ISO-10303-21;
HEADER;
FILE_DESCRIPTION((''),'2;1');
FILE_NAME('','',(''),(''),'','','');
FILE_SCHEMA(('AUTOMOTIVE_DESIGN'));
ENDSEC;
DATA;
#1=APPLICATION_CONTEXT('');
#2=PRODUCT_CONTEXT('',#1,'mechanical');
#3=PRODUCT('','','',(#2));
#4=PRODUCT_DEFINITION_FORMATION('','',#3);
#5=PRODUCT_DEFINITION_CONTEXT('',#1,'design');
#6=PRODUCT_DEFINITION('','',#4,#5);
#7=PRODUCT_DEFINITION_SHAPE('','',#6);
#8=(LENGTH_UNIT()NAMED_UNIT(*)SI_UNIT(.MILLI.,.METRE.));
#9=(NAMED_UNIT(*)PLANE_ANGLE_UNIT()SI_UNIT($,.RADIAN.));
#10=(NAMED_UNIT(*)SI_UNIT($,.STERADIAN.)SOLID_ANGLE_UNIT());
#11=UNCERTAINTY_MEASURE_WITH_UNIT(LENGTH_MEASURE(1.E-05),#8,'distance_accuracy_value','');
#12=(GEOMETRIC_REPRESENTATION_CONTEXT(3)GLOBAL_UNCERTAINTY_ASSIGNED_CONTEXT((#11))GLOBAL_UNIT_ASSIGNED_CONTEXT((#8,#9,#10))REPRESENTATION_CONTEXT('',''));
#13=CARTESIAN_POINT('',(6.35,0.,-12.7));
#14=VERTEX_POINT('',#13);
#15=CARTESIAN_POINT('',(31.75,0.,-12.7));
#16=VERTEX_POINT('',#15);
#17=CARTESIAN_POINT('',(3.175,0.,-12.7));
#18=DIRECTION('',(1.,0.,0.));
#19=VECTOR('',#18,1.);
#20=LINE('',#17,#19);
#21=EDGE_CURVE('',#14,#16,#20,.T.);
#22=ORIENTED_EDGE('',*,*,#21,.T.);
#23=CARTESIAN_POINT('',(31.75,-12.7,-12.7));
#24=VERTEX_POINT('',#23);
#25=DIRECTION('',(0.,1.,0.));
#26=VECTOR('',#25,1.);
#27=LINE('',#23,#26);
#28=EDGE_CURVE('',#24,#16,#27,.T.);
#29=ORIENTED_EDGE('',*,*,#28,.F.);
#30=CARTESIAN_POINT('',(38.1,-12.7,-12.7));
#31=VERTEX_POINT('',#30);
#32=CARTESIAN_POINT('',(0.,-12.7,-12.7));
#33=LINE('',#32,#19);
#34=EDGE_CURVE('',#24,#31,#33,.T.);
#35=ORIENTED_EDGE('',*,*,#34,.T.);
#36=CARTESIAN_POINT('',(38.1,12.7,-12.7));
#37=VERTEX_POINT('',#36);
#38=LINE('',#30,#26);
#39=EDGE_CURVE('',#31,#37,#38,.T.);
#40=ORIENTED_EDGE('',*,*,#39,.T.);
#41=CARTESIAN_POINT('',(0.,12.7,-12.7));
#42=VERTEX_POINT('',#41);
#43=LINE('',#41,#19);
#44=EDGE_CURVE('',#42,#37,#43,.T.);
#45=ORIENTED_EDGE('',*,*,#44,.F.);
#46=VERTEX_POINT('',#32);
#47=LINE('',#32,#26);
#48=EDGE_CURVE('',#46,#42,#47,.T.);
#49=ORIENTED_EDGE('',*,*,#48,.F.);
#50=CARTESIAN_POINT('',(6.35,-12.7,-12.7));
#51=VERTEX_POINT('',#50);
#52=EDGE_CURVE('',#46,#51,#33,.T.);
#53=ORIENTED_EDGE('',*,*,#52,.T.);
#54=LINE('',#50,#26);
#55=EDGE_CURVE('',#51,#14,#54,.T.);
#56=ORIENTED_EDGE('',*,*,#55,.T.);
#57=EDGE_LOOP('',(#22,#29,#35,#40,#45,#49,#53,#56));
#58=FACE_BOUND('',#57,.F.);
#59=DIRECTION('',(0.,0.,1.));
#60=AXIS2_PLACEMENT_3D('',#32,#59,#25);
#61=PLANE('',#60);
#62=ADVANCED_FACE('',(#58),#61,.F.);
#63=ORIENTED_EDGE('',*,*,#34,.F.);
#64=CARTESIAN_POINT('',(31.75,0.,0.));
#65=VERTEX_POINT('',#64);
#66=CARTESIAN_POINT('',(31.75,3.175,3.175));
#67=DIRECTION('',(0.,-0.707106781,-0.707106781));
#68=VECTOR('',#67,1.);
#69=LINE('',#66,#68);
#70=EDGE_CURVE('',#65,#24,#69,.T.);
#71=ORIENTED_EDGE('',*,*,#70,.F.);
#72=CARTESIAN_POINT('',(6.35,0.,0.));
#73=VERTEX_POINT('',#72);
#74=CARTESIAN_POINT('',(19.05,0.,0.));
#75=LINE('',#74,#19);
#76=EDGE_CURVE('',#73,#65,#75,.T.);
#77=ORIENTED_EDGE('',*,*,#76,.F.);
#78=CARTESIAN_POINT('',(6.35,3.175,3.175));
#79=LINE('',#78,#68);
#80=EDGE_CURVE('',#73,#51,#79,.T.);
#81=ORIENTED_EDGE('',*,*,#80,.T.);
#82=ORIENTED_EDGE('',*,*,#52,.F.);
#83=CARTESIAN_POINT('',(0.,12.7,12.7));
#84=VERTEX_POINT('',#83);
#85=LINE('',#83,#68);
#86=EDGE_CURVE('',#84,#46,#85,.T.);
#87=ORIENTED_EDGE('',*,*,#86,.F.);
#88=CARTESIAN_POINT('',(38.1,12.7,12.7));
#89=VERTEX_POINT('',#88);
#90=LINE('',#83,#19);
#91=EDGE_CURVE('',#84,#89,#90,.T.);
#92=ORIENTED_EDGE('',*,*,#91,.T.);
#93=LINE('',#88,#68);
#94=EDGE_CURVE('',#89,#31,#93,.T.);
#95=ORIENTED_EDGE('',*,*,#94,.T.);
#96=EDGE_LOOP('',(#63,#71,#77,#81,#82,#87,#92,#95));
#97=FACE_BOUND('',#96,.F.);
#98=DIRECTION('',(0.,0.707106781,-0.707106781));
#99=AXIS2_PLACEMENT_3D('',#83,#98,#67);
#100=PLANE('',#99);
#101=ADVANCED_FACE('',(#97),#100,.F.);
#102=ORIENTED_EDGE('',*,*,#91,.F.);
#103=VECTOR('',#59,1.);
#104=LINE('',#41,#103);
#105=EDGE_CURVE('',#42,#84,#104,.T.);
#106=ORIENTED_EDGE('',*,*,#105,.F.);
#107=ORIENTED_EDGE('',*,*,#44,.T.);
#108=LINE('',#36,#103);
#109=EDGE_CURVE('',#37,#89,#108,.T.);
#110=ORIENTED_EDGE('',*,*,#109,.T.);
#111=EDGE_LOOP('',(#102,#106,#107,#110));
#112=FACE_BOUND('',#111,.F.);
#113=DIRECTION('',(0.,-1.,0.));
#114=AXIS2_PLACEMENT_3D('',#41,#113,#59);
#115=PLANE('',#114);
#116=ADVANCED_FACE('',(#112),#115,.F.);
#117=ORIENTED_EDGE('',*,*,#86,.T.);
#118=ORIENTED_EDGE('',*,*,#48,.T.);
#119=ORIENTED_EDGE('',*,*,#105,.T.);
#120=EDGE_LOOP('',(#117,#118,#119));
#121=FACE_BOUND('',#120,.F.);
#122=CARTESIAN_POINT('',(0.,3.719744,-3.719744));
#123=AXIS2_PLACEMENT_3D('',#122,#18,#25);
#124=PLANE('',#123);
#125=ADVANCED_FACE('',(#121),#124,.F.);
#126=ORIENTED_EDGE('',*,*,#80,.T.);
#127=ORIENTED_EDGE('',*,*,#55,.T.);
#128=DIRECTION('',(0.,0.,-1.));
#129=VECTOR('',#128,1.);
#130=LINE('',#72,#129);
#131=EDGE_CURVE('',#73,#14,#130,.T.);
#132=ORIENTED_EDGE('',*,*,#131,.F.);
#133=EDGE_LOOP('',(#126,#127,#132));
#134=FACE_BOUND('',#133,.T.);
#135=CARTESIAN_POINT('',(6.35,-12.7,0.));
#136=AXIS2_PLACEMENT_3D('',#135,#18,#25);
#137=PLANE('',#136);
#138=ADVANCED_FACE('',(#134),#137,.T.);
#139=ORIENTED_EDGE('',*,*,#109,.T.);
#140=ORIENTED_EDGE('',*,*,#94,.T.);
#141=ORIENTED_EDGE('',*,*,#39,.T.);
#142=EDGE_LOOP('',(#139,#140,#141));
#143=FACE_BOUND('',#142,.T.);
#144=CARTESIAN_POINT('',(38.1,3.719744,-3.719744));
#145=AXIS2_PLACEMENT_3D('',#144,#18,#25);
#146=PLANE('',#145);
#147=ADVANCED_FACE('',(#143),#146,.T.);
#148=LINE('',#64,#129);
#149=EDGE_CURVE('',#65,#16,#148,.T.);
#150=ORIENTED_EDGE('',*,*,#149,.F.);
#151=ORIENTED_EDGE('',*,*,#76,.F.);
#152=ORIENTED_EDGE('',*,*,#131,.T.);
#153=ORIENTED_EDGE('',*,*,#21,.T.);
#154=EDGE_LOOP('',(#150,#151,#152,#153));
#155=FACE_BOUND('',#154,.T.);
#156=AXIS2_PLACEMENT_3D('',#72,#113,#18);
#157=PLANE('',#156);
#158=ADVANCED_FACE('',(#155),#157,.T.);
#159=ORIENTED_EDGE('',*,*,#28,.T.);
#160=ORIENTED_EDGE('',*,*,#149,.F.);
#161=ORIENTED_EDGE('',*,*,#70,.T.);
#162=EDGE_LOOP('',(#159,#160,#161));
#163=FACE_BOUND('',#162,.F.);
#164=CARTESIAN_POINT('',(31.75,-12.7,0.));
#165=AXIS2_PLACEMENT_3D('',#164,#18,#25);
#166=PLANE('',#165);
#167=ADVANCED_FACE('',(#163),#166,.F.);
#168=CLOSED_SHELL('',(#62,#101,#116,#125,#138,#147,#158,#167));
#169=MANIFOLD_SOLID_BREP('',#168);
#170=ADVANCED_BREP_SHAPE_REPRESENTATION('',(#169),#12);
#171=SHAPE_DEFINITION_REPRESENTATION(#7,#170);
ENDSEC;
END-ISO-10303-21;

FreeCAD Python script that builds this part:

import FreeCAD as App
import Part
import Sketcher

V = App.Vector
Q = App.Units.Quantity


def add_polygon(sketch, points):
    """Adds a closed chain of lines whose ends are joined by coincident constraints."""
    first, n = sketch.GeometryCount, len(points)
    for a, b in zip(points, points[1:] + points[:1]):
        sketch.addGeometry(Part.LineSegment(App.Vector(*a, 0), App.Vector(*b, 0)), False)
    for i in range(n):
        sketch.addConstraint(Sketcher.Constraint("Coincident", first + i, 2, first + (i + 1) % n, 1))

doc = App.newDocument("Part")
params = doc.addObject("Spreadsheet::Sheet", "Params")
for row, (alias, value) in enumerate([
    ("sketch1_width", "1 in"),
    ("pad1_length", "1.5 in"),
    ("sketch2_width", "1 in"),
    ("sketch2_height", "0.5 in"),
], start=1):
    params.set(f"A{row}", alias)
    params.set(f"B{row}", "=" + value)
    params.setAlias(f"B{row}", alias)

body = doc.addObject("PartDesign::Body", "Body")

# Sketch on YZ plane
sketch1 = body.newObject("Sketcher::SketchObject", "Sketch")
sketch1.AttachmentSupport = (doc.getObject("YZ_Plane"), [""])
sketch1.MapMode = "FlatFace"
add_polygon(sketch1, [(13, 13), (-13, -13), (13, -13)])  # lines 0-2
sketch1.addConstraint(Sketcher.Constraint("Horizontal", 1))
sketch1.addConstraint(Sketcher.Constraint("Vertical", 2))
sketch1.addConstraint(Sketcher.Constraint("Symmetric", 0, 2, 2, 2, -1, 1))
sketch1.addConstraint(Sketcher.Constraint("Equal", 1, 2))
sketch1.addConstraint(Sketcher.Constraint("DistanceX", 1, 1, 1, 2, Q("1 in")))
sketch1.setExpression("Constraints[7]", "Params.sketch1_width")
pad1 = body.newObject("PartDesign::Pad", "Pad")
pad1.Profile = sketch1
pad1.setExpression("Length", "Params.pad1_length")

# Sketch on XY plane
sketch2 = body.newObject("Sketcher::SketchObject", "Sketch001")
sketch2.AttachmentSupport = (doc.getObject("XY_Plane"), [""])
sketch2.MapMode = "FlatFace"
add_polygon(sketch2, [(6, 0), (6, -13), (32, -13), (32, 0)])  # lines 0-3
sketch2.addConstraint(Sketcher.Constraint("Vertical", 0))
sketch2.addConstraint(Sketcher.Constraint("Horizontal", 1))
sketch2.addConstraint(Sketcher.Constraint("Vertical", 2))
sketch2.addConstraint(Sketcher.Constraint("Horizontal", 3))
sketch2.addConstraint(Sketcher.Constraint("PointOnObject", 2, 2, -1))
sketch2.addConstraint(Sketcher.Constraint("DistanceX", 1, 1, 1, 2, Q("1 in")))
sketch2.addConstraint(Sketcher.Constraint("DistanceY", 0, 2, 0, 1, Q("0.5 in")))
sketch2.addConstraint(Sketcher.Constraint("DistanceX", -1, 1, 0, 2, Q("0.25 in")))
sketch2.setExpression("Constraints[9]", "Params.sketch2_width")
sketch2.setExpression("Constraints[10]", "Params.sketch2_height")
pocket1 = body.newObject("PartDesign::Pocket", "Pocket")
pocket1.Profile = sketch2
pocket1.Type = "ThroughAll"

doc.recompute()
